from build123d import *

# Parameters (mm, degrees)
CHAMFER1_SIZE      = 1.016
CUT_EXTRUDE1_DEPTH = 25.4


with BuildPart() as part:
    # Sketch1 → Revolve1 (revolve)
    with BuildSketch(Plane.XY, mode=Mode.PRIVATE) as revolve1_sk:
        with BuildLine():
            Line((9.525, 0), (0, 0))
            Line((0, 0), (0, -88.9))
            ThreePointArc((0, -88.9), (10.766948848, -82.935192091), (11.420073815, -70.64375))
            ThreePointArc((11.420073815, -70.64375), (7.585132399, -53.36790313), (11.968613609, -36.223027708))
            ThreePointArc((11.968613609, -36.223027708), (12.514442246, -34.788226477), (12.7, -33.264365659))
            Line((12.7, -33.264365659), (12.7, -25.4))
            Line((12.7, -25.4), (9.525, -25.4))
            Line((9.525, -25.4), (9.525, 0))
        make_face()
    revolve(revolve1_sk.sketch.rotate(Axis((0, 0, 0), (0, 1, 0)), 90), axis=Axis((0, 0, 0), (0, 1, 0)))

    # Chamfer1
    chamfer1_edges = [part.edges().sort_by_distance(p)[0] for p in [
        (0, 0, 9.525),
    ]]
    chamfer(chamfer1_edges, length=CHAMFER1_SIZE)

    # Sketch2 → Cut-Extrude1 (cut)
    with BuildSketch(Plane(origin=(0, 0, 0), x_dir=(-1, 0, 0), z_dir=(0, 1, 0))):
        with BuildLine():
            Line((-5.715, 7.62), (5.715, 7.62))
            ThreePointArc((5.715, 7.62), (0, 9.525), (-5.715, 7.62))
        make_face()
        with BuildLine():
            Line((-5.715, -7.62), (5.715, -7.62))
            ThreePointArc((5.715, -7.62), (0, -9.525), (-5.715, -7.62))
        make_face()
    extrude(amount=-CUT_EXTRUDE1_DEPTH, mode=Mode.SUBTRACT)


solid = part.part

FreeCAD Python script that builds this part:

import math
import FreeCAD as App
import Part
import Sketcher
Q = App.Units.Quantity


def edges_at(feature, points):
    """Names of the edges that pass closest to the given points."""
    edges = feature.Shape.Edges
    near = lambda p: min(range(len(edges)), key=lambda i: edges[i].distToShape(Part.Vertex(*p))[0])
    return sorted({f"Edge{near(p) + 1}" for p in points})

doc = App.newDocument("Part")
body = doc.addObject("PartDesign::Body", "Body")

# Sketch on XY plane
sketch1 = body.newObject("Sketcher::SketchObject", "Sketch")
sketch1.AttachmentSupport = (doc.getObject("XY_Plane"), [""])
sketch1.MapMode = "FlatFace"
sketch1.addGeometry([
    Part.LineSegment(App.Vector(9.5, 0, 0), App.Vector(0, 0, 0)),  # 0
    Part.LineSegment(App.Vector(0, 0, 0), App.Vector(0, -88.9, 0)),  # 1
    Part.ArcOfCircle(Part.Circle(App.Vector(0, -76.2, 0), App.Vector(0, 0, 1), 12.7), math.radians(-90), math.radians(26)),  # 2
    Part.ArcOfCircle(Part.Circle(App.Vector(45.7, -54, 0), App.Vector(0, 0, 1), 38.1), math.radians(152), math.radians(206)),  # 3
    Part.ArcOfCircle(Part.Circle(App.Vector(6.3, -33.3, 0), App.Vector(0, 0, 1), 6.4), math.radians(-28), math.radians(0)),  # 4
    Part.LineSegment(App.Vector(12.7, -33.3, 0), App.Vector(12.7, -25.4, 0)),  # 5
    Part.LineSegment(App.Vector(12.7, -25.4, 0), App.Vector(9.5, -25.4, 0)),  # 6
    Part.LineSegment(App.Vector(9.5, -25.4, 0), App.Vector(9.5, 0, 0)),  # 7
], False)
sketch1.addConstraint([
    Sketcher.Constraint("Coincident", 0, 2, 1, 1),
    Sketcher.Constraint("Coincident", 1, 2, 2, 1),
    Sketcher.Constraint("Tangent", 2, 2, 3, 2),
    Sketcher.Constraint("Tangent", 3, 1, 4, 1),
    Sketcher.Constraint("Tangent", 4, 2, 5, 1),
    Sketcher.Constraint("Coincident", 5, 2, 6, 1),
    Sketcher.Constraint("Coincident", 6, 2, 7, 1),
    Sketcher.Constraint("Coincident", 7, 2, 0, 1),
    Sketcher.Constraint("Horizontal", 0),
    Sketcher.Constraint("Vertical", 1),
    Sketcher.Constraint("Vertical", 5),
    Sketcher.Constraint("Horizontal", 6),
    Sketcher.Constraint("Vertical", 7),
    Sketcher.Constraint("Coincident", 0, 2, -1, 1),
    Sketcher.Constraint("PointOnObject", 2, 3, -2),
    Sketcher.Constraint("Radius", 2, Q("0.5 in")),
    Sketcher.Constraint("Radius", 3, Q("1.5 in")),
    Sketcher.Constraint("DistanceY", 7, 1, 7, 2, Q("1 in")),
    Sketcher.Constraint("Radius", 4, Q("0.25 in")),
    Sketcher.Constraint("DistanceY", 1, 2, 1, 1, Q("3.5 in")),
    Sketcher.Constraint("DistanceX", -1, 1, 4, 2, Q("0.5 in")),
    Sketcher.Constraint("DistanceX", 0, 2, 0, 1, Q("0.375 in")),
    Sketcher.Constraint("DistanceY", 3, 3, -1, 1, Q("2.125 in")),
])
revolution = body.newObject("PartDesign::Revolution", "Revolution")
revolution.Profile = sketch1
revolution.ReferenceAxis = (sketch1, ["V_Axis"])
revolution.Angle = 360
doc.recompute()

chamfer = body.newObject("PartDesign::Chamfer", "Chamfer")
chamfer.Base = (revolution, edges_at(revolution, [(0, 0, 9.525)]))
chamfer.Size = Q("0.04 in")

# Sketch on XZ plane
sketch2 = body.newObject("Sketcher::SketchObject", "Sketch001")
sketch2.AttachmentSupport = (doc.getObject("XZ_Plane"), [""])
sketch2.MapMode = "FlatFace"
sketch2.addGeometry([
    Part.LineSegment(App.Vector(6, 8, 0), App.Vector(-6, 8, 0)),
    Part.ArcOfCircle(Part.Circle(App.Vector(0, 0, 0), App.Vector(0, 0, 1), 10), math.radians(53), math.radians(127)),
    Part.LineSegment(App.Vector(-6, -8, 0), App.Vector(6, -8, 0)),
    Part.ArcOfCircle(Part.Circle(App.Vector(0, 0, 0), App.Vector(0, 0, 1), 10), math.radians(-127), math.radians(-53)),
], False)
sketch2.addConstraint([
    Sketcher.Constraint("Coincident", 0, 1, 1, 1),
    Sketcher.Constraint("Coincident", 1, 2, 0, 2),
    Sketcher.Constraint("Coincident", 2, 1, 3, 1),
    Sketcher.Constraint("Coincident", 3, 2, 2, 2),
    Sketcher.Constraint("Horizontal", 0),
    Sketcher.Constraint("Horizontal", 2),
    Sketcher.Constraint("Coincident", 1, 3, -1, 1),
    Sketcher.Constraint("Coincident", 3, 3, -1, 1),
    Sketcher.Constraint("Equal", 1, 3),
    Sketcher.Constraint("Vertical", 1, 2, 2, 1),
    Sketcher.Constraint("Radius", 1, Q("0.375 in")),
    Sketcher.Constraint("DistanceX", 0, 2, 0, 1, Q("0.45 in")),
])
pocket1 = body.newObject("PartDesign::Pocket", "Pocket")
pocket1.Profile = sketch2
pocket1.Length = Q("1 in")
pocket1.Reversed = True

doc.recompute()
